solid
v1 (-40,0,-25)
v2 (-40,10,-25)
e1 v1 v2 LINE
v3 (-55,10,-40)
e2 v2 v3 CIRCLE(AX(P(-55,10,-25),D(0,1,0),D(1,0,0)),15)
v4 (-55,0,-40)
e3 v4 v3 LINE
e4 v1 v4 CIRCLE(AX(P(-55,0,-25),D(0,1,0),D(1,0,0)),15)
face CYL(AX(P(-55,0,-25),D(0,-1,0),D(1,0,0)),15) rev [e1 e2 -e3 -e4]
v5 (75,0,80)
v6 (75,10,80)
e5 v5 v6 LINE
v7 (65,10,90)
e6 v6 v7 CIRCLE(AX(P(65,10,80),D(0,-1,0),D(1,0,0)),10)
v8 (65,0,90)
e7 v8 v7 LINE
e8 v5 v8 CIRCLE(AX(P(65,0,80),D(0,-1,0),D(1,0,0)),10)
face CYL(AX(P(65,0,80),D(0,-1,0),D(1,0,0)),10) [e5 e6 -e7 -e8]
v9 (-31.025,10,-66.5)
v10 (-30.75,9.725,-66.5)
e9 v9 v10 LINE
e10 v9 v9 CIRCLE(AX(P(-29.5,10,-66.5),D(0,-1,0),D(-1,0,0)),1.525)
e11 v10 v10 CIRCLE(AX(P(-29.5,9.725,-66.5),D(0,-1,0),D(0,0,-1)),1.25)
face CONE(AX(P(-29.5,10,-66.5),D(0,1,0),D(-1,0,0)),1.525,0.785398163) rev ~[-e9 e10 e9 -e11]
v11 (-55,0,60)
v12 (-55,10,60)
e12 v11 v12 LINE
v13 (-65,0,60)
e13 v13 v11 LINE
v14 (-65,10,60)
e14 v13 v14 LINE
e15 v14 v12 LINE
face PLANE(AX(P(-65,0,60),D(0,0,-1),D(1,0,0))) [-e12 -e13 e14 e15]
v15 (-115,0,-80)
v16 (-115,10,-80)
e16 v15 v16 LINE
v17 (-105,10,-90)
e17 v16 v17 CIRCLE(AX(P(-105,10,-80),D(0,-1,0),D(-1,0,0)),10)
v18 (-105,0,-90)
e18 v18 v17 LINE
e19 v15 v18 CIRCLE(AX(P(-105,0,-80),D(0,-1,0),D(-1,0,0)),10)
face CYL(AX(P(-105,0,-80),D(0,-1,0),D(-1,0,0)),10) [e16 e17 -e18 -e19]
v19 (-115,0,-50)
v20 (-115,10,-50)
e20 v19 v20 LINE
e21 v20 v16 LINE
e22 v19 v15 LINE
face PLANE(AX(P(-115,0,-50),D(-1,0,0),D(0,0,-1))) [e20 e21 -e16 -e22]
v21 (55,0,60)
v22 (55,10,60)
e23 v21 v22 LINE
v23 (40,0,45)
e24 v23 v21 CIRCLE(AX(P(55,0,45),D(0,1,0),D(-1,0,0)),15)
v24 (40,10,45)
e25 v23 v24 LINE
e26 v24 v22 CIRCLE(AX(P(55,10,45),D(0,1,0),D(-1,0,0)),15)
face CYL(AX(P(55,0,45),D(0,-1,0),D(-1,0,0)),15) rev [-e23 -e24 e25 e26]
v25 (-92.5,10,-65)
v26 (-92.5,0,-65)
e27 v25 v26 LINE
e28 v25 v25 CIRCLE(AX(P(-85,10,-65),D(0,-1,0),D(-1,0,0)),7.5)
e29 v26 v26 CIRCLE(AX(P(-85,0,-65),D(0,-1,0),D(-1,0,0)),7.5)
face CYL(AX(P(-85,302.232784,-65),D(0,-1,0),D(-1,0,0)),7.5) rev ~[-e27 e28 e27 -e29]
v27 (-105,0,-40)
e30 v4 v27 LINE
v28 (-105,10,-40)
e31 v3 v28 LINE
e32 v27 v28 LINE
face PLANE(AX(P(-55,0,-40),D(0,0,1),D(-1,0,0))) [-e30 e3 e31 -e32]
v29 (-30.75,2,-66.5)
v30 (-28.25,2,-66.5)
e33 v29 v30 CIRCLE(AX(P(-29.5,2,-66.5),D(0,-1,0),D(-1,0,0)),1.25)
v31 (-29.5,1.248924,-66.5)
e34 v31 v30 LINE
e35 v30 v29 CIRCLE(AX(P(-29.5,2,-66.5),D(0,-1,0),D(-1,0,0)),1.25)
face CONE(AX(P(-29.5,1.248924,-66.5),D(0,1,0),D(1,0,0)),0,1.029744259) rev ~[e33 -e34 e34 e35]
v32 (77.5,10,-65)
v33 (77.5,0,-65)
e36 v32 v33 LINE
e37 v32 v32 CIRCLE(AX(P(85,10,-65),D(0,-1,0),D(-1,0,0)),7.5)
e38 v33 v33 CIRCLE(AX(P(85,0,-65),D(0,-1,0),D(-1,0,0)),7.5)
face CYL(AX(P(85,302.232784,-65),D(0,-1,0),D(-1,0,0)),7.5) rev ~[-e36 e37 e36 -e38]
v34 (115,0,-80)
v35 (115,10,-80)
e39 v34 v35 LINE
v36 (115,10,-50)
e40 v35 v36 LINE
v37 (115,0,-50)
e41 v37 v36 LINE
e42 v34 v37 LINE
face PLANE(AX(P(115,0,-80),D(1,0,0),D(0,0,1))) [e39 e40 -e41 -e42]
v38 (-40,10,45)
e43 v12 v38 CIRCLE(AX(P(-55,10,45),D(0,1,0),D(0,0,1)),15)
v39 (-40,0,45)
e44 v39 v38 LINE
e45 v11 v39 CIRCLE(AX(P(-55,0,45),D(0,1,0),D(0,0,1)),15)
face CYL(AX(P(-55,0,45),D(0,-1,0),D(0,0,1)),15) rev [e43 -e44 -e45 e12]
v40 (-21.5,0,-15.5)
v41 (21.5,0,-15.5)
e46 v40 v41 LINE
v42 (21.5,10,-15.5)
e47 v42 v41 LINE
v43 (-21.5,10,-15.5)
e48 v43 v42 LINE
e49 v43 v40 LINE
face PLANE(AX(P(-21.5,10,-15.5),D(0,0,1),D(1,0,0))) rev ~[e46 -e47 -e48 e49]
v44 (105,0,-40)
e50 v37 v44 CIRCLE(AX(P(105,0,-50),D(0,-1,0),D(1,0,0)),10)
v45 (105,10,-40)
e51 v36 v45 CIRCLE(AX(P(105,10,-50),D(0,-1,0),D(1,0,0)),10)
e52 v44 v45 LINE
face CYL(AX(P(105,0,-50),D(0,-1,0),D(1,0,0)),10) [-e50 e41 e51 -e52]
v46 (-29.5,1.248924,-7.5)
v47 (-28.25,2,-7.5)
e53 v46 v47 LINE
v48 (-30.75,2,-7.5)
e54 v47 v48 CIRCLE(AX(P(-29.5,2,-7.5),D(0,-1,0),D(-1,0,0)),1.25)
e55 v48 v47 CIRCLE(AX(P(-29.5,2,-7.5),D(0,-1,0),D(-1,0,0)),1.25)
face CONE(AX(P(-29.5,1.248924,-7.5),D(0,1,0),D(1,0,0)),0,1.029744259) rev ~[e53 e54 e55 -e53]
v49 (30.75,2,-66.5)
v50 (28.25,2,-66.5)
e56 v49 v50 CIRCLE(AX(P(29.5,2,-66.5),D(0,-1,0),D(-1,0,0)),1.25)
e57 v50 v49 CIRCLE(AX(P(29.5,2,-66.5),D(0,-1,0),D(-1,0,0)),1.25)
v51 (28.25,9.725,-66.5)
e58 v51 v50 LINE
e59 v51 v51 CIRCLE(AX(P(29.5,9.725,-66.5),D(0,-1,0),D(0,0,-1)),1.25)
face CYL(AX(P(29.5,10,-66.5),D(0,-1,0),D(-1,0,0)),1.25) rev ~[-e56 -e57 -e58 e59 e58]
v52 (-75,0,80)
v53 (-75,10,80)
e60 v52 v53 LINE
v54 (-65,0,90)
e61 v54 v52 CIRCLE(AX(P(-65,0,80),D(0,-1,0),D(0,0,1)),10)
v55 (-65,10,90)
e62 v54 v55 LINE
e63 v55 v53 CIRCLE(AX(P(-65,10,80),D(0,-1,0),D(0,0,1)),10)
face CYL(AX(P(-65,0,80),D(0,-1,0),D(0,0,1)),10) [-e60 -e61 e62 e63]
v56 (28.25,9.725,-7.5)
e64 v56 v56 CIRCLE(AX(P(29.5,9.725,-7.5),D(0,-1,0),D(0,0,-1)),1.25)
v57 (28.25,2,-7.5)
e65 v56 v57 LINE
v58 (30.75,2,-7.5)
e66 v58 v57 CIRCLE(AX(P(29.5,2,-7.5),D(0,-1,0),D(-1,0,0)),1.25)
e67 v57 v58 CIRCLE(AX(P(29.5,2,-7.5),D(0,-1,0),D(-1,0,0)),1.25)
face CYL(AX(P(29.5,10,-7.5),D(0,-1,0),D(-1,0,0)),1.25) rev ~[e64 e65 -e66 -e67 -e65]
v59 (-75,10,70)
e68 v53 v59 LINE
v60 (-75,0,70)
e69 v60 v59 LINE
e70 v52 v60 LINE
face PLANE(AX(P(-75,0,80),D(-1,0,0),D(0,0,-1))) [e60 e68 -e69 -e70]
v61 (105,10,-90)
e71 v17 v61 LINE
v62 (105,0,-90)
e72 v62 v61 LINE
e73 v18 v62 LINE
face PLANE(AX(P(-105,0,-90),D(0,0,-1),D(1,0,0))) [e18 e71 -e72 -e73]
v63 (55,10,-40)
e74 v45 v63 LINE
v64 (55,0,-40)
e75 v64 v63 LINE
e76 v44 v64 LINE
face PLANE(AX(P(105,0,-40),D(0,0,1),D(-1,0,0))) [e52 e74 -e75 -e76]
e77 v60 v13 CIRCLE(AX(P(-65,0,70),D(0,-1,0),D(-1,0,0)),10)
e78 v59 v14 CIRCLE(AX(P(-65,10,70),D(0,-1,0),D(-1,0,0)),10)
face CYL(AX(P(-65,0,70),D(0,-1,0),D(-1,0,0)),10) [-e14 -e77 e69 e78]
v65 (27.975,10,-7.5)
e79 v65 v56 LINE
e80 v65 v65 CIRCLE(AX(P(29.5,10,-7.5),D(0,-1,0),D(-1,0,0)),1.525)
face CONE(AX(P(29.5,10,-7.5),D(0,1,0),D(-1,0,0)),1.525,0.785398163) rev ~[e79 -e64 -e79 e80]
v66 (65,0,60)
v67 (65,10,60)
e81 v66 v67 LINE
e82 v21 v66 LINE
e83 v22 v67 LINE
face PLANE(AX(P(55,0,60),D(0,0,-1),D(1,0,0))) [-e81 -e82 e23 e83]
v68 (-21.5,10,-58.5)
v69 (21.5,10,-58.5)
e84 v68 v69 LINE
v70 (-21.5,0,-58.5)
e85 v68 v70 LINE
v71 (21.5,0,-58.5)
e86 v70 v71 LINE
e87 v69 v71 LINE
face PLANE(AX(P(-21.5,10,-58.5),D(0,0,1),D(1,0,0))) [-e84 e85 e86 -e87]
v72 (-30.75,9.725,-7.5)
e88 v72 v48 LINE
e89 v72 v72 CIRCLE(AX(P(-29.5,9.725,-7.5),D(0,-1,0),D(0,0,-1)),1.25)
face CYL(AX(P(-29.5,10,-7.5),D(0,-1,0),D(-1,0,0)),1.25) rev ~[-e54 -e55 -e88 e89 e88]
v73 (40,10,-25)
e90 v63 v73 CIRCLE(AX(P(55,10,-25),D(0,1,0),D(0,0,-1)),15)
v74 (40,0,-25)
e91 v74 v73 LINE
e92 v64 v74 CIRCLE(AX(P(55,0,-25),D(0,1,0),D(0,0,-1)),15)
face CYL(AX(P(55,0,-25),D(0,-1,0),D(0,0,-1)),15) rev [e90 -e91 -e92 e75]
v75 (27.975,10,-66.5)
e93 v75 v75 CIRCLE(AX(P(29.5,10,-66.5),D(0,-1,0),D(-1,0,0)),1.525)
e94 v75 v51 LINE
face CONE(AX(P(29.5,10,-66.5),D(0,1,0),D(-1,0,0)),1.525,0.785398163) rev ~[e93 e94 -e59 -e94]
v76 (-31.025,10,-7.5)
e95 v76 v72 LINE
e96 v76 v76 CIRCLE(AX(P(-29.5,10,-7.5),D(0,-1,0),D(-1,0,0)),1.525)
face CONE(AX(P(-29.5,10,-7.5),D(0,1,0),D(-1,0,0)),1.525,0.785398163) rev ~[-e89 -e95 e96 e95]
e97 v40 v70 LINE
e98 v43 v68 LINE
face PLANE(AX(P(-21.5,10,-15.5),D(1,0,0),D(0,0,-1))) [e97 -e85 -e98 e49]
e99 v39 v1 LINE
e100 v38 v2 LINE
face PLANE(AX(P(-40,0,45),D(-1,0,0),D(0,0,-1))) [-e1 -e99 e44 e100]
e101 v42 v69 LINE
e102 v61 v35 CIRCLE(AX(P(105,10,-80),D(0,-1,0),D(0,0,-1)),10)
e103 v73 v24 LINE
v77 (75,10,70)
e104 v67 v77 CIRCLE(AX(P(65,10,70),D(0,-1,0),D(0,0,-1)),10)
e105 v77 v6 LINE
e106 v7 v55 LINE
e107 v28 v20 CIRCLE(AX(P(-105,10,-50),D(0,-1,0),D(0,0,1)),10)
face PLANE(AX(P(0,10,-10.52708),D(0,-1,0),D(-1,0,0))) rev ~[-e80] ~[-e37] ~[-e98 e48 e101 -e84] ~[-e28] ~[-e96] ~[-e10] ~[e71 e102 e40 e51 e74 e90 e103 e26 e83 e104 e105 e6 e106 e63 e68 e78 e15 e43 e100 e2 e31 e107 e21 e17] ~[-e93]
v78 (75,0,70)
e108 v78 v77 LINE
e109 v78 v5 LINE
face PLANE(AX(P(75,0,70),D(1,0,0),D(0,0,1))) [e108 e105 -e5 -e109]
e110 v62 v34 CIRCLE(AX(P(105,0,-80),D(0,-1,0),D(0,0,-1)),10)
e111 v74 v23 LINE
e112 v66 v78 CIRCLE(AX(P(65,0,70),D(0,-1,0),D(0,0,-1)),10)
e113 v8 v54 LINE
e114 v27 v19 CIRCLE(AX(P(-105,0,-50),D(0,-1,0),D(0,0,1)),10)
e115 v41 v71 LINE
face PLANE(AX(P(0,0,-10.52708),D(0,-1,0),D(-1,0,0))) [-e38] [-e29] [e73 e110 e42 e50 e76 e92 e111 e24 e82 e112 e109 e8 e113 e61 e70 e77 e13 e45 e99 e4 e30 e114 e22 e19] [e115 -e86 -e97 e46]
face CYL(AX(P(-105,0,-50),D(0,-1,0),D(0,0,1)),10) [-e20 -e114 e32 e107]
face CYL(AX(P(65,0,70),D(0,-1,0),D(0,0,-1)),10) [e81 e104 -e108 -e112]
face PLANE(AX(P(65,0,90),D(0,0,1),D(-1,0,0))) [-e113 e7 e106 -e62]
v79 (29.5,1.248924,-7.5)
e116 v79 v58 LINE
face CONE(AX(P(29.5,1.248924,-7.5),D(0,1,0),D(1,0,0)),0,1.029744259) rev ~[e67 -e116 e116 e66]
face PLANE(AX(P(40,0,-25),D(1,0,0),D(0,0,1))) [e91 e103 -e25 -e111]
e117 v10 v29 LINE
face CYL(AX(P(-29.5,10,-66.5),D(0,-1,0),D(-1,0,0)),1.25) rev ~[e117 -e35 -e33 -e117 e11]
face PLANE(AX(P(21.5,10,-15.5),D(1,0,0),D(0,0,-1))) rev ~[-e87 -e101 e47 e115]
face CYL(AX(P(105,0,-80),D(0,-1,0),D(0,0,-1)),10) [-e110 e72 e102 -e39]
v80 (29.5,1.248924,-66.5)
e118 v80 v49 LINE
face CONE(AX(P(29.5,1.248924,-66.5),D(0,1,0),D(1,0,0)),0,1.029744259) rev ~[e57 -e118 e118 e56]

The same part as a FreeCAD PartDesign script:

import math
import FreeCAD as App
import Part
import Sketcher

V = App.Vector

doc = App.newDocument("Part")
body = doc.addObject("PartDesign::Body", "Body")

# Sketch on XZ plane
sketch1 = body.newObject("Sketcher::SketchObject", "Sketch")
sketch1.AttachmentSupport = (doc.getObject("XZ_Plane"), [""])
sketch1.MapMode = "FlatFace"
sketch1.addGeometry([
    Part.LineSegment(V(105, -90, 0), V(-105, -90, 0)),  # 0
    Part.ArcOfCircle(Part.Circle(V(-105, -80, 0), V(0, 0, 1), 10), math.radians(180), math.radians(270)),  # 1
    Part.LineSegment(V(-115, -80, 0), V(-115, -50, 0)),  # 2
    Part.ArcOfCircle(Part.Circle(V(-105, -50, 0), V(0, 0, 1), 10), math.radians(90), math.radians(180)),  # 3
    Part.LineSegment(V(-105, -40, 0), V(-55, -40, 0)),  # 4
    Part.ArcOfCircle(Part.Circle(V(-55, -25, 0), V(0, 0, 1), 15), math.radians(-90), math.radians(0)),  # 5
    Part.LineSegment(V(-40, -25, 0), V(-40, 45, 0)),  # 6
    Part.ArcOfCircle(Part.Circle(V(-55, 45, 0), V(0, 0, 1), 15), math.radians(0), math.radians(90)),  # 7
    Part.LineSegment(V(-55, 60, 0), V(-65, 60, 0)),  # 8
    Part.ArcOfCircle(Part.Circle(V(-65, 70, 0), V(0, 0, 1), 10), math.radians(180), math.radians(270)),  # 9
    Part.LineSegment(V(-75, 70, 0), V(-75, 80, 0)),  # 10
    Part.ArcOfCircle(Part.Circle(V(-65, 80, 0), V(0, 0, 1), 10), math.radians(90), math.radians(180)),  # 11
    Part.LineSegment(V(-65, 90, 0), V(65, 90, 0)),  # 12
    Part.ArcOfCircle(Part.Circle(V(65, 80, 0), V(0, 0, 1), 10), math.radians(0), math.radians(90)),  # 13
    Part.LineSegment(V(75, 80, 0), V(75, 70, 0)),  # 14
    Part.ArcOfCircle(Part.Circle(V(65, 70, 0), V(0, 0, 1), 10), math.radians(-90), math.radians(0)),  # 15
    Part.LineSegment(V(65, 60, 0), V(55, 60, 0)),  # 16
    Part.ArcOfCircle(Part.Circle(V(55, 45, 0), V(0, 0, 1), 15), math.radians(90), math.radians(180)),  # 17
    Part.LineSegment(V(40, 45, 0), V(40, -25, 0)),  # 18
    Part.ArcOfCircle(Part.Circle(V(55, -25, 0), V(0, 0, 1), 15), math.radians(180), math.radians(270)),  # 19
    Part.LineSegment(V(55, -40, 0), V(105, -40, 0)),  # 20
    Part.ArcOfCircle(Part.Circle(V(105, -50, 0), V(0, 0, 1), 10), math.radians(0), math.radians(90)),  # 21
    Part.LineSegment(V(115, -50, 0), V(115, -80, 0)),  # 22
    Part.ArcOfCircle(Part.Circle(V(105, -80, 0), V(0, 0, 1), 10), math.radians(-90), math.radians(0)),  # 23
], False)
sketch1.addConstraint([
    Sketcher.Constraint("Tangent", 0, 2, 1, 2),
    Sketcher.Constraint("Tangent", 1, 1, 2, 1),
    Sketcher.Constraint("Tangent", 2, 2, 3, 2),
    Sketcher.Constraint("Tangent", 3, 1, 4, 1),
    Sketcher.Constraint("Tangent", 4, 2, 5, 1),
    Sketcher.Constraint("Tangent", 5, 2, 6, 1),
    Sketcher.Constraint("Tangent", 6, 2, 7, 1),
    Sketcher.Constraint("Tangent", 7, 2, 8, 1),
    Sketcher.Constraint("Tangent", 8, 2, 9, 2),
    Sketcher.Constraint("Tangent", 9, 1, 10, 1),
    Sketcher.Constraint("Tangent", 10, 2, 11, 2),
    Sketcher.Constraint("Tangent", 11, 1, 12, 1),
    Sketcher.Constraint("Tangent", 12, 2, 13, 2),
    Sketcher.Constraint("Tangent", 13, 1, 14, 1),
    Sketcher.Constraint("Tangent", 14, 2, 15, 2),
    Sketcher.Constraint("Tangent", 15, 1, 16, 1),
    Sketcher.Constraint("Tangent", 16, 2, 17, 1),
    Sketcher.Constraint("Tangent", 17, 2, 18, 1),
    Sketcher.Constraint("Tangent", 18, 2, 19, 1),
    Sketcher.Constraint("Tangent", 19, 2, 20, 1),
    Sketcher.Constraint("Tangent", 20, 2, 21, 2),
    Sketcher.Constraint("Tangent", 21, 1, 22, 1),
    Sketcher.Constraint("Tangent", 22, 2, 23, 2),
    Sketcher.Constraint("Tangent", 23, 1, 0, 1),
    Sketcher.Constraint("Horizontal", 0),
    Sketcher.Constraint("Vertical", 2),
    Sketcher.Constraint("Horizontal", 4),
    Sketcher.Constraint("Vertical", 6),
    Sketcher.Constraint("Horizontal", 8),
    Sketcher.Constraint("Vertical", 10),
    Sketcher.Constraint("Horizontal", 12),
    Sketcher.Constraint("Vertical", 14),
    Sketcher.Constraint("Horizontal", 16),
    Sketcher.Constraint("Vertical", 18),
    Sketcher.Constraint("Horizontal", 20),
    Sketcher.Constraint("Vertical", 22),
    Sketcher.Constraint("Equal", 1, 3),
    Sketcher.Constraint("Equal", 5, 7),
    Sketcher.Constraint("Equal", 3, 9),
    Sketcher.Constraint("Equal", 9, 11),
    Sketcher.Constraint("Equal", 11, 13),
    Sketcher.Constraint("Equal", 13, 15),
    Sketcher.Constraint("Equal", 7, 17),
    Sketcher.Constraint("Equal", 17, 19),
    Sketcher.Constraint("Equal", 15, 21),
    Sketcher.Constraint("Equal", 21, 23),
    Sketcher.Constraint("Symmetric", 9, 3, 15, 3, -2),
    Sketcher.Constraint("Symmetric", 5, 3, 19, 3, -2),
    Sketcher.Constraint("Equal", 4, 20),
    Sketcher.Constraint("Equal", 16, 10),
    Sketcher.Constraint("Radius", 1, 10.0),
    Sketcher.Constraint("Radius", 5, 15.0),
    Sketcher.Constraint("DistanceX", 0, 2, 0, 1, 210.0),
    Sketcher.Constraint("DistanceX", 4, 1, 4, 2, 50.0),
    Sketcher.Constraint("DistanceX", 8, 2, 8, 1, 10.0),
    Sketcher.Constraint("DistanceY", 2, 1, 2, 2, 30.0),
    Sketcher.Constraint("DistanceY", 6, 1, 6, 2, 70.0),
    Sketcher.Constraint("DistanceY", 1, 3, -1, 1, 80.0),
])
pad1 = body.newObject("PartDesign::Pad", "Pad")
pad1.Profile = sketch1
pad1.Length = 10
pad1.Reversed = True

# Sketch on XZ plane
sketch2 = body.newObject("Sketcher::SketchObject", "Sketch001")
sketch2.AttachmentSupport = (doc.getObject("XZ_Plane"), [""])
sketch2.MapMode = "FlatFace"
sketch2.AttachmentOffset = App.Placement(V(0, 0, -10), App.Rotation())
sketch2.addGeometry([
    Part.Circle(V(-85, -65, 0), V(0, 0, 1), 7.5),
    Part.Circle(V(85, -65, 0), V(0, 0, 1), 7.5),
], False)
sketch2.addConstraint([
    Sketcher.Constraint("Equal", 0, 1),
    Sketcher.Constraint("Symmetric", 0, 3, 1, 3, -2),
    Sketcher.Constraint("Diameter", 0, 15.0),
    Sketcher.Constraint("DistanceX", 0, 3, -1, 1, 85.0),
    Sketcher.Constraint("DistanceY", 0, 3, -1, 1, 65.0),
])
doc.recompute()
hole = body.newObject("PartDesign::Hole", "Hole")
hole.Profile = sketch2
hole.ThreadType = "None"
hole.Diameter = 15
hole.DepthType = "ThroughAll"
hole.Reversed = True

# Sketch on XZ plane
sketch3 = body.newObject("Sketcher::SketchObject", "Sketch002")
sketch3.AttachmentSupport = (doc.getObject("XZ_Plane"), [""])
sketch3.MapMode = "FlatFace"
sketch3.AttachmentOffset = App.Placement(V(0, 0, -10), App.Rotation())
sketch3.addGeometry([
    Part.LineSegment(V(-21.5, -58.5, 0), V(-21.5, -15.5, 0)),
    Part.LineSegment(V(-21.5, -15.5, 0), V(21.5, -15.5, 0)),
    Part.LineSegment(V(21.5, -15.5, 0), V(21.5, -58.5, 0)),
    Part.LineSegment(V(21.5, -58.5, 0), V(-21.5, -58.5, 0)),
], False)
sketch3.addConstraint([
    Sketcher.Constraint("Coincident", 0, 2, 1, 1),
    Sketcher.Constraint("Coincident", 1, 2, 2, 1),
    Sketcher.Constraint("Coincident", 2, 2, 3, 1),
    Sketcher.Constraint("Coincident", 3, 2, 0, 1),
    Sketcher.Constraint("Vertical", 0),
    Sketcher.Constraint("Horizontal", 1),
    Sketcher.Constraint("Vertical", 2),
    Sketcher.Constraint("Horizontal", 3),
    Sketcher.Constraint("Equal", 3, 0),
    Sketcher.Constraint("DistanceX", 1, 1, 1, 2, 43.0),
    Sketcher.Constraint("DistanceX", 0, 2, -1, 1, 21.5),
    Sketcher.Constraint("DistanceY", 0, 2, -1, 1, 15.5),
])
pocket1 = body.newObject("PartDesign::Pocket", "Pocket")
pocket1.Profile = sketch3
pocket1.Length = 10
pocket1.Reversed = True

# Sketch on XZ plane
sketch4 = body.newObject("Sketcher::SketchObject", "Sketch003")
sketch4.AttachmentSupport = (doc.getObject("XZ_Plane"), [""])
sketch4.MapMode = "FlatFace"
sketch4.AttachmentOffset = App.Placement(V(0, 0, -10), App.Rotation())
sketch4.addGeometry([
    Part.Circle(V(-29.5, -66.5, 0), V(0, 0, 1), 1.25),
    Part.Circle(V(-29.5, -7.5, 0), V(0, 0, 1), 1.25),
    Part.Circle(V(29.5, -7.5, 0), V(0, 0, 1), 1.25),
    Part.Circle(V(29.5, -66.5, 0), V(0, 0, 1), 1.25),
], False)
sketch4.addConstraint([
    Sketcher.Constraint("Equal", 0, 1),
    Sketcher.Constraint("Equal", 1, 2),
    Sketcher.Constraint("Equal", 2, 3),
    Sketcher.Constraint("Symmetric", 1, 3, 2, 3, -2),
    Sketcher.Constraint("Symmetric", 0, 3, 3, 3, -2),
    Sketcher.Constraint("Vertical", 0, 3, 1, 3),
    Sketcher.Constraint("Diameter", 0, 2.5),
    Sketcher.Constraint("DistanceY", 0, 3, 1, 3, 59.0),
    Sketcher.Constraint("DistanceX", 1, 3, 2, 3, 59.0),
    Sketcher.Constraint("DistanceY", 0, 3, -1, 1, 66.5),
])
doc.recompute()
hole2 = body.newObject("PartDesign::Hole", "Hole001")
hole2.Profile = sketch4
hole2.ThreadType = "None"
hole2.Diameter = 2.5
hole2.DepthType = "Dimension"
hole2.Depth = 8
hole2.DrillPoint = "Angled"
hole2.DrillPointAngle = 118
hole2.HoleCutType = "Countersink"
hole2.HoleCutDiameter = 3.05
hole2.HoleCutCountersinkAngle = 90
hole2.Reversed = True

doc.recompute()
